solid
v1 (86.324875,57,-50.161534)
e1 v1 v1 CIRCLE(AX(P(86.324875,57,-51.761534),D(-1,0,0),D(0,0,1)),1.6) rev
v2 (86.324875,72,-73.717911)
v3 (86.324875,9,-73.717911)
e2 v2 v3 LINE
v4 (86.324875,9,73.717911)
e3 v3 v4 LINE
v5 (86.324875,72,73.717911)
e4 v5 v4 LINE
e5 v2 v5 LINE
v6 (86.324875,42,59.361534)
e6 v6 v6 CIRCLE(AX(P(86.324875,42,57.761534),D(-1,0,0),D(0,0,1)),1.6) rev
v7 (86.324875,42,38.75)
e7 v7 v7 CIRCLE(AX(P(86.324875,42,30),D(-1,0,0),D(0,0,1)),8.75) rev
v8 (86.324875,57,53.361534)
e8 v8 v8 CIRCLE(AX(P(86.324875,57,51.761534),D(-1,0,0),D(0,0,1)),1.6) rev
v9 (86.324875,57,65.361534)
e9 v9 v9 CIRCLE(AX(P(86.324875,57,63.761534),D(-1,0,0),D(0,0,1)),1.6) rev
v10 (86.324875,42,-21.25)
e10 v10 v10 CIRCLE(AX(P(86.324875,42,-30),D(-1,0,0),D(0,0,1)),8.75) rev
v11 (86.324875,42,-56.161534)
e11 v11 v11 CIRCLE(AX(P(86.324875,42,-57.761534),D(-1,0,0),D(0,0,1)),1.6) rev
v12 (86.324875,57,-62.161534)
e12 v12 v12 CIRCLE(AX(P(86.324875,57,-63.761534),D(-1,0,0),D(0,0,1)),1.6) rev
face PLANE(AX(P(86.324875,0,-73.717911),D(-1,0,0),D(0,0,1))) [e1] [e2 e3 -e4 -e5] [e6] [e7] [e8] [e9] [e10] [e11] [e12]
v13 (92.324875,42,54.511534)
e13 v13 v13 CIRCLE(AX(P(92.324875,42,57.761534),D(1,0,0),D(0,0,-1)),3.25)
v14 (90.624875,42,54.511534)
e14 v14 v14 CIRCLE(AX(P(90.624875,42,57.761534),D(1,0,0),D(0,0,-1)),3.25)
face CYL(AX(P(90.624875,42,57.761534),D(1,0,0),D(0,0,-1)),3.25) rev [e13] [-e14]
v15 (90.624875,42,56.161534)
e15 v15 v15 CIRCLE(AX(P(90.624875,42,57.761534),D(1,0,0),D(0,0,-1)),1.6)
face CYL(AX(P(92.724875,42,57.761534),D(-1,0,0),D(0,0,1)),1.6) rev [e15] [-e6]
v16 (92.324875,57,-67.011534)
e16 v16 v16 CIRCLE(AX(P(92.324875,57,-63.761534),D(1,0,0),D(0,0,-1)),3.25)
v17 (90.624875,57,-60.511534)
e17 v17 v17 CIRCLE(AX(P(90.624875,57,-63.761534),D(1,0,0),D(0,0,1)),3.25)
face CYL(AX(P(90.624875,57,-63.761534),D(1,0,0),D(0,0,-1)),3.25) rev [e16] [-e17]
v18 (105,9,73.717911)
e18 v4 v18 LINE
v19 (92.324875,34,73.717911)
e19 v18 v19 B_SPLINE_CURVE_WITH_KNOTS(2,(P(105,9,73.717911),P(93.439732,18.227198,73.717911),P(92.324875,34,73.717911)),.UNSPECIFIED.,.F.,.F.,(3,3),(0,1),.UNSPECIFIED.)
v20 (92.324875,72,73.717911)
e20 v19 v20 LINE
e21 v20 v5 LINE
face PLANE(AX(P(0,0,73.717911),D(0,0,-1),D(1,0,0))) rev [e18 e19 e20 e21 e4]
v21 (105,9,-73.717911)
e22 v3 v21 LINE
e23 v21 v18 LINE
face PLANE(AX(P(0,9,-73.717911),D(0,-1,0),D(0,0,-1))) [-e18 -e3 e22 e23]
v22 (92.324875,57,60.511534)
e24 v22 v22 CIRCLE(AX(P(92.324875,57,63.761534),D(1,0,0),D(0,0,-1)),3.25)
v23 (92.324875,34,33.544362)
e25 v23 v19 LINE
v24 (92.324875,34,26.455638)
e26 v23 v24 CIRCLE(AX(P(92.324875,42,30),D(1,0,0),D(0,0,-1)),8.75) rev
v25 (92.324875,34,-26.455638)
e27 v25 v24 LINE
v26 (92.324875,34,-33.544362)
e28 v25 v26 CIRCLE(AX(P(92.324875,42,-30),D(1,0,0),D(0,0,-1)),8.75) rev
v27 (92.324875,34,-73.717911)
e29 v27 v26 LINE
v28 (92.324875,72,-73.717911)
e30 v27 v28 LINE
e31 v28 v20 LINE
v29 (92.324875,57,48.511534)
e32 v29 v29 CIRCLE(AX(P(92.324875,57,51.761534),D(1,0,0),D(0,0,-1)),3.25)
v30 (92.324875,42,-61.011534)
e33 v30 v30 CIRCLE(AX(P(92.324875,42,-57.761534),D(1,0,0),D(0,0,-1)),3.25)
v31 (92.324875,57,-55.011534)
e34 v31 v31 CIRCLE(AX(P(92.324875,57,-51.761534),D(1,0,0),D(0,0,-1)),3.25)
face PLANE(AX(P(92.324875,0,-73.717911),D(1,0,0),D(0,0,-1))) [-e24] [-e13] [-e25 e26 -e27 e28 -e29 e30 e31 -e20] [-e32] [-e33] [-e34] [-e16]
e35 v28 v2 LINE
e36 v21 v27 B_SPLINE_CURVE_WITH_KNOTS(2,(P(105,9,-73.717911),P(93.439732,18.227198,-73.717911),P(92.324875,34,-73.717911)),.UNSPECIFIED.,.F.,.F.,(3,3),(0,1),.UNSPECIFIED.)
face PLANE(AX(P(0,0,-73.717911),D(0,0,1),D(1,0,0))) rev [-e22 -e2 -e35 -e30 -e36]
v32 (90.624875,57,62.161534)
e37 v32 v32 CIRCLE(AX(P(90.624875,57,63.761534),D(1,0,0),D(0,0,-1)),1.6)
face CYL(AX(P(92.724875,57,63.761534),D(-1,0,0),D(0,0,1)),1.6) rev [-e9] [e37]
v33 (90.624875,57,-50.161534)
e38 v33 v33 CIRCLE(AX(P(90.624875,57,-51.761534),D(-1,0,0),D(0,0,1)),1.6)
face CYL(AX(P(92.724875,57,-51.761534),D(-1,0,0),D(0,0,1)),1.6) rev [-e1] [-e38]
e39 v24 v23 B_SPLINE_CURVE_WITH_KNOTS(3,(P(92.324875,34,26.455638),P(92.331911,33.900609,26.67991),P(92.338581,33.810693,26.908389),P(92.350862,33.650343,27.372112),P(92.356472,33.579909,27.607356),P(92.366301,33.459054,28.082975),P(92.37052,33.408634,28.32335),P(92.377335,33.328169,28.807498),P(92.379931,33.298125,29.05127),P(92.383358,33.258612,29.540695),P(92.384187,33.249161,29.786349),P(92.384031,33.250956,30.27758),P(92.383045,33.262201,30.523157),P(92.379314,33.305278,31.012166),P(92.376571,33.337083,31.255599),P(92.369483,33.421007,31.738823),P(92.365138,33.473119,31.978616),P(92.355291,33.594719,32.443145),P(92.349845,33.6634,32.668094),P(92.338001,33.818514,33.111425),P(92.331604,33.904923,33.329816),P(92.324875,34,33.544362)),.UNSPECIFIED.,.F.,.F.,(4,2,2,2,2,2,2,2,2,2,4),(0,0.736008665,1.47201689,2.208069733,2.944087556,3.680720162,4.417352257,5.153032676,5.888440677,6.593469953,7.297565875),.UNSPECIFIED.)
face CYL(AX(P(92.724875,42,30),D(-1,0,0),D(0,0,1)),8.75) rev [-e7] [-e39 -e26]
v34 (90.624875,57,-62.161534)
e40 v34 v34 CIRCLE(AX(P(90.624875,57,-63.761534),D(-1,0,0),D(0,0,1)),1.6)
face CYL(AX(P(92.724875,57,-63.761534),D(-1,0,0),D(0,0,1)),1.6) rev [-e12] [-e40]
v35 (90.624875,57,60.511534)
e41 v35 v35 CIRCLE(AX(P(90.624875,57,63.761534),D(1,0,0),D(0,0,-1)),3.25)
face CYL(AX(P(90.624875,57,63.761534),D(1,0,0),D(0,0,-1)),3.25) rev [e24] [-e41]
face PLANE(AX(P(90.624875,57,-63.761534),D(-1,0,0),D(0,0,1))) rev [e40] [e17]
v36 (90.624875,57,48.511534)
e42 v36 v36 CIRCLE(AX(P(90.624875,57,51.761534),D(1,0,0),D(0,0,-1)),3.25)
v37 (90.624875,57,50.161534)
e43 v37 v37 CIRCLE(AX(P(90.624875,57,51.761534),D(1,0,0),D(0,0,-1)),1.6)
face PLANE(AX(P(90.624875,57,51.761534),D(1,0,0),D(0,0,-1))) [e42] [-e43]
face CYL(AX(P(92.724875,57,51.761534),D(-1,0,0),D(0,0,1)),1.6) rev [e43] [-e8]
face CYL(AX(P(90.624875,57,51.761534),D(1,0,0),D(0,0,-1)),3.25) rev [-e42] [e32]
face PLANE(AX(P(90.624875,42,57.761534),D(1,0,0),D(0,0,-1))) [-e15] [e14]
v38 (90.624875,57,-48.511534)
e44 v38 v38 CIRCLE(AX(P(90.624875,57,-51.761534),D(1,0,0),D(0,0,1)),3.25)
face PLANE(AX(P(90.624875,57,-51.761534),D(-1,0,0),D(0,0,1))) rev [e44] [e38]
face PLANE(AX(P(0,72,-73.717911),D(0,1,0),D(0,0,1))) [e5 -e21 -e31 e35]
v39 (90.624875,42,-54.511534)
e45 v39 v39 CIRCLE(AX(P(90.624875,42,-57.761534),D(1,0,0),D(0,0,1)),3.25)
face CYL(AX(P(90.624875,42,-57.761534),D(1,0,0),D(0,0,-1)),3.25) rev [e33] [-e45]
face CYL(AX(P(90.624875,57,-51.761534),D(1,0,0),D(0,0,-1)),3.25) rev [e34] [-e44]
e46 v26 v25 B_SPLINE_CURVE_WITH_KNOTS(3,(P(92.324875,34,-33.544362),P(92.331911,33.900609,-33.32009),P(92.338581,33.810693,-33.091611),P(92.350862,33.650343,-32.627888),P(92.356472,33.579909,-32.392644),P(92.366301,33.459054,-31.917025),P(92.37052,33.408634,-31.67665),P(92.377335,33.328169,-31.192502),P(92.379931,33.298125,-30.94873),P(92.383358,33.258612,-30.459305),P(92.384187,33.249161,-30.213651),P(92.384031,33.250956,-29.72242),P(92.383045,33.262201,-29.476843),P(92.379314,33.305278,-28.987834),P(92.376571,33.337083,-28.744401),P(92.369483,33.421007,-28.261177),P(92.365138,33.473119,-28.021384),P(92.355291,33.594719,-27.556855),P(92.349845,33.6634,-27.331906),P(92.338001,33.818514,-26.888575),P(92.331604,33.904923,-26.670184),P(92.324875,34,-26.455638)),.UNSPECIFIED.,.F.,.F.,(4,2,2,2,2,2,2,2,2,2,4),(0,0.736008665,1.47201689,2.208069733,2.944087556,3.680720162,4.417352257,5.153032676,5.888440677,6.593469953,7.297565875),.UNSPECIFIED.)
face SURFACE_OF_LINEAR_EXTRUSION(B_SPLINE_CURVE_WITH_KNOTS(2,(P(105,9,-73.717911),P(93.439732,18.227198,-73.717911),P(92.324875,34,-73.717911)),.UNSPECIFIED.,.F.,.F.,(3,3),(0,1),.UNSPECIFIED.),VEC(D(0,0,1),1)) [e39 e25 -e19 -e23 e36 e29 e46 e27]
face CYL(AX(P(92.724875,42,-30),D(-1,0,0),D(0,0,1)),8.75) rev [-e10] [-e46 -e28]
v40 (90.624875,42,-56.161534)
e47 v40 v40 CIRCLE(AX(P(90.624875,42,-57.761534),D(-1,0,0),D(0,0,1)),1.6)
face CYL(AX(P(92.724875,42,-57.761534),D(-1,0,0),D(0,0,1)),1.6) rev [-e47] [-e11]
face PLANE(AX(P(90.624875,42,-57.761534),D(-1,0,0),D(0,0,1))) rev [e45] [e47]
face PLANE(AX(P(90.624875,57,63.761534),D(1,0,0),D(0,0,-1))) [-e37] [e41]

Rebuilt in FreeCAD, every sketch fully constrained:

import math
import FreeCAD as App
import Part
import Sketcher
from FreeCAD import Vector

doc = App.newDocument("Part")
body = doc.addObject("PartDesign::Body", "Body")

sketch1 = body.newObject("Sketcher::SketchObject", "Sketch")
sketch1.AttachmentSupport = (doc.getObject("XY_Plane"), [""])
sketch1.MapMode = "FlatFace"
sketch1.addGeometry(Part.LineSegment(Vector(86.324875, 72, 0), Vector(86.324875, 9, 0)), False)
sketch1.addGeometry(Part.LineSegment(Vector(86.324875, 9, 0), Vector(105, 9, 0)), False)
sketch1.addGeometry(Part.BSplineCurve([Vector(105, 9, 0), Vector(93.439732, 18.227198, 0), Vector(92.324875, 34, 0)], [3, 3], [0, 1], False, 2, [1, 1, 1], False), False)
sketch1.addGeometry(Part.LineSegment(Vector(92.324875, 34, 0), Vector(92.324875, 72, 0)), False)
sketch1.addGeometry(Part.LineSegment(Vector(92.324875, 72, 0), Vector(86.324875, 72, 0)), False)
sketch1.addConstraint(Sketcher.Constraint("Block", 2))
sketch1.addConstraint(Sketcher.Constraint("Coincident", 0, 2, 1, 1))
sketch1.addConstraint(Sketcher.Constraint("Coincident", 1, 2, 2, 1))
sketch1.addConstraint(Sketcher.Constraint("Coincident", 2, 2, 3, 1))
sketch1.addConstraint(Sketcher.Constraint("Coincident", 3, 2, 4, 1))
sketch1.addConstraint(Sketcher.Constraint("Coincident", 4, 2, 0, 1))
sketch1.addConstraint(Sketcher.Constraint("Vertical", 0))
sketch1.addConstraint(Sketcher.Constraint("Horizontal", 1))
sketch1.addConstraint(Sketcher.Constraint("Vertical", 3))
sketch1.addConstraint(Sketcher.Constraint("Horizontal", 4))
sketch1.addConstraint(Sketcher.Constraint("DistanceX", 4, 2, 4, 1, 6.0))
sketch1.addConstraint(Sketcher.Constraint("DistanceY", 0, 2, 0, 1, 63.0))
pad1 = body.newObject("PartDesign::Pad", "Pad")
pad1.Profile = sketch1
pad1.Length = 73.717911
pad1.Reversed = True
doc.recompute()

mirrored = body.newObject("PartDesign::Mirrored", "Mirrored")
mirrored.Originals = [pad1]
mirrored.MirrorPlane = (doc.getObject("XY_Plane"), [""])
body.Tip = mirrored

sketch2 = body.newObject("Sketcher::SketchObject", "Sketch001")
sketch2.AttachmentSupport = (doc.getObject("YZ_Plane"), [""])
sketch2.MapMode = "FlatFace"
sketch2.AttachmentOffset = App.Placement(Vector(0, 0, 92.324875), App.Rotation())
sketch2.addGeometry(Part.LineSegment(Vector(34, -34, 0), Vector(34, -26, 0)), False)
sketch2.addGeometry(Part.ArcOfCircle(Part.Circle(Vector(42, -30, 0), Vector(0, 0, 1), 9), math.radians(156), math.radians(204)), False)
sketch2.addConstraint(Sketcher.Constraint("Coincident", 0, 1, 1, 2))
sketch2.addConstraint(Sketcher.Constraint("Coincident", 1, 1, 0, 2))
sketch2.addConstraint(Sketcher.Constraint("Vertical", 0))
sketch2.addConstraint(Sketcher.Constraint("Radius", 1, 8.75))
sketch2.addConstraint(Sketcher.Constraint("DistanceX", -1, 1, 1, 3, 42.0))
sketch2.addConstraint(Sketcher.Constraint("DistanceY", 1, 3, -1, 1, 30.0))
sketch2.addConstraint(Sketcher.Constraint("DistanceX", -1, 1, 0, 1, 34.0))
pocket1 = body.newObject("PartDesign::Pocket", "Pocket")
pocket1.Profile = sketch2
pocket1.Type = "UpToFirst"

sketch3 = body.newObject("Sketcher::SketchObject", "Sketch002")
sketch3.AttachmentSupport = (doc.getObject("YZ_Plane"), [""])
sketch3.MapMode = "FlatFace"
sketch3.AttachmentOffset = App.Placement(Vector(0, 0, 92.324875), App.Rotation())
sketch3.addGeometry(Part.ArcOfCircle(Part.Circle(Vector(42, -30, 0), Vector(0, 0, 1), 9), math.radians(-90), math.radians(156)), False)
sketch3.addGeometry(Part.LineSegment(Vector(34, -26, 0), Vector(34, -34, 0)), False)
sketch3.addGeometry(Part.ArcOfCircle(Part.Circle(Vector(42, -30, 0), Vector(0, 0, 1), 9), math.radians(-156), math.radians(-90)), False)
sketch3.addConstraint(Sketcher.Constraint("Coincident", 0, 2, 1, 1))
sketch3.addConstraint(Sketcher.Constraint("Coincident", 1, 2, 2, 1))
sketch3.addConstraint(Sketcher.Constraint("Tangent", 2, 2, 0, 1))
sketch3.addConstraint(Sketcher.Constraint("Vertical", 1))
sketch3.addConstraint(Sketcher.Constraint("Equal", 0, 2))
sketch3.addConstraint(Sketcher.Constraint("Vertical", 0, 3, 2, 2))
sketch3.addConstraint(Sketcher.Constraint("Radius", 0, 8.75))
sketch3.addConstraint(Sketcher.Constraint("DistanceX", -1, 1, 0, 3, 42.0))
sketch3.addConstraint(Sketcher.Constraint("DistanceY", 0, 3, -1, 1, 30.0))
sketch3.addConstraint(Sketcher.Constraint("DistanceX", -1, 1, 0, 2, 34.0))
pocket2 = body.newObject("PartDesign::Pocket", "Pocket001")
pocket2.Profile = sketch3
pocket2.Type = "UpToFirst"

sketch4 = body.newObject("Sketcher::SketchObject", "Sketch003")
sketch4.AttachmentSupport = (doc.getObject("YZ_Plane"), [""])
sketch4.MapMode = "FlatFace"
sketch4.AttachmentOffset = App.Placement(Vector(0, 0, 92.324875), App.Rotation())
sketch4.addGeometry(Part.Circle(Vector(42, 30, 0), Vector(0, 0, 1), 9), False)
sketch4.addConstraint(Sketcher.Constraint("Diameter", 0, 17.5))
sketch4.addConstraint(Sketcher.Constraint("DistanceX", -1, 1, 0, 3, 42.0))
sketch4.addConstraint(Sketcher.Constraint("DistanceY", -1, 1, 0, 3, 30.0))
pocket3 = body.newObject("PartDesign::Pocket", "Pocket002")
pocket3.Profile = sketch4
pocket3.Type = "UpToFirst"

sketch5 = body.newObject("Sketcher::SketchObject", "Sketch004")
sketch5.AttachmentSupport = (doc.getObject("YZ_Plane"), [""])
sketch5.MapMode = "FlatFace"
sketch5.AttachmentOffset = App.Placement(Vector(0, 0, 92.324875), App.Rotation())
sketch5.addGeometry(Part.ArcOfCircle(Part.Circle(Vector(42, -30, 0), Vector(0, 0, 1), 9), math.radians(156), math.radians(204)), False)
sketch5.addGeometry(Part.ArcOfCircle(Part.Circle(Vector(42, -30, 0), Vector(0, 0, 1), 9), math.radians(-156), math.radians(-90)), False)
sketch5.addGeometry(Part.ArcOfCircle(Part.Circle(Vector(42, -30, 0), Vector(0, 0, 1), 9), math.radians(-90), math.radians(156)), False)
sketch5.addGeometry(Part.Circle(Vector(42, 30, 0), Vector(0, 0, 1), 9), False)
sketch5.addConstraint(Sketcher.Constraint("Tangent", 0, 2, 1, 1))
sketch5.addConstraint(Sketcher.Constraint("Tangent", 1, 2, 2, 1))
sketch5.addConstraint(Sketcher.Constraint("Tangent", 2, 2, 0, 1))
sketch5.addConstraint(Sketcher.Constraint("Equal", 2, 3))
sketch5.addConstraint(Sketcher.Constraint("Symmetric", 0, 3, 3, 3, -1))
sketch5.addConstraint(Sketcher.Constraint("Vertical", 3, 3, 1, 2))
sketch5.addConstraint(Sketcher.Constraint("Vertical", 0, 2, 2, 2))
sketch5.addConstraint(Sketcher.Constraint("Diameter", 3, 17.5))
sketch5.addConstraint(Sketcher.Constraint("DistanceX", -1, 1, 0, 3, 42.0))
sketch5.addConstraint(Sketcher.Constraint("DistanceY", 0, 3, -1, 1, 30.0))
sketch5.addConstraint(Sketcher.Constraint("DistanceX", -1, 1, 0, 2, 34.0))
pocket4 = body.newObject("PartDesign::Pocket", "Pocket003")
pocket4.Profile = sketch5
pocket4.Length = 0.4
pocket4.Reversed = True

sketch6 = body.newObject("Sketcher::SketchObject", "Sketch005")
sketch6.AttachmentSupport = (doc.getObject("YZ_Plane"), [""])
sketch6.MapMode = "FlatFace"
sketch6.AttachmentOffset = App.Placement(Vector(0, 0, 92.324875), App.Rotation())
sketch6.addGeometry(Part.Circle(Vector(42, 57.8, 0), Vector(0, 0, 1), 1.6), False)
sketch6.addConstraint(Sketcher.Constraint("Diameter", 0, 3.2))
sketch6.addConstraint(Sketcher.Constraint("DistanceX", -1, 1, 0, 3, 42.0))
sketch6.addConstraint(Sketcher.Constraint("DistanceY", -1, 1, 0, 3, 57.761534))
pocket5 = body.newObject("PartDesign::Pocket", "Pocket004")
pocket5.Profile = sketch6
pocket5.Type = "UpToFirst"

sketch7 = body.newObject("Sketcher::SketchObject", "Sketch006")
sketch7.AttachmentSupport = (doc.getObject("YZ_Plane"), [""])
sketch7.MapMode = "FlatFace"
sketch7.AttachmentOffset = App.Placement(Vector(0, 0, 92.324875), App.Rotation())
sketch7.addGeometry(Part.Circle(Vector(57, 63.8, 0), Vector(0, 0, 1), 1.6), False)
sketch7.addConstraint(Sketcher.Constraint("Diameter", 0, 3.2))
sketch7.addConstraint(Sketcher.Constraint("DistanceX", -1, 1, 0, 3, 57.0))
sketch7.addConstraint(Sketcher.Constraint("DistanceY", -1, 1, 0, 3, 63.761534))
pocket6 = body.newObject("PartDesign::Pocket", "Pocket005")
pocket6.Profile = sketch7
pocket6.Type = "UpToFirst"

sketch8 = body.newObject("Sketcher::SketchObject", "Sketch007")
sketch8.AttachmentSupport = (doc.getObject("YZ_Plane"), [""])
sketch8.MapMode = "FlatFace"
sketch8.AttachmentOffset = App.Placement(Vector(0, 0, 92.324875), App.Rotation())
sketch8.addGeometry(Part.Circle(Vector(57, 51.8, 0), Vector(0, 0, 1), 1.6), False)
sketch8.addConstraint(Sketcher.Constraint("Diameter", 0, 3.2))
sketch8.addConstraint(Sketcher.Constraint("DistanceX", -1, 1, 0, 3, 57.0))
sketch8.addConstraint(Sketcher.Constraint("DistanceY", -1, 1, 0, 3, 51.761534))
pocket7 = body.newObject("PartDesign::Pocket", "Pocket006")
pocket7.Profile = sketch8
pocket7.Type = "UpToFirst"

sketch9 = body.newObject("Sketcher::SketchObject", "Sketch008")
sketch9.AttachmentSupport = (doc.getObject("YZ_Plane"), [""])
sketch9.MapMode = "FlatFace"
sketch9.AttachmentOffset = App.Placement(Vector(0, 0, 92.324875), App.Rotation())
sketch9.addGeometry(Part.Circle(Vector(57, -51.8, 0), Vector(0, 0, 1), 1.6), False)
sketch9.addConstraint(Sketcher.Constraint("Diameter", 0, 3.2))
sketch9.addConstraint(Sketcher.Constraint("DistanceX", -1, 1, 0, 3, 57.0))
sketch9.addConstraint(Sketcher.Constraint("DistanceY", 0, 3, -1, 1, 51.761534))
pocket8 = body.newObject("PartDesign::Pocket", "Pocket007")
pocket8.Profile = sketch9
pocket8.Type = "UpToFirst"

sketch10 = body.newObject("Sketcher::SketchObject", "Sketch009")
sketch10.AttachmentSupport = (doc.getObject("YZ_Plane"), [""])
sketch10.MapMode = "FlatFace"
sketch10.AttachmentOffset = App.Placement(Vector(0, 0, 92.324875), App.Rotation())
sketch10.addGeometry(Part.Circle(Vector(57, -63.8, 0), Vector(0, 0, 1), 1.6), False)
sketch10.addConstraint(Sketcher.Constraint("Diameter", 0, 3.2))
sketch10.addConstraint(Sketcher.Constraint("DistanceX", -1, 1, 0, 3, 57.0))
sketch10.addConstraint(Sketcher.Constraint("DistanceY", 0, 3, -1, 1, 63.761534))
pocket9 = body.newObject("PartDesign::Pocket", "Pocket008")
pocket9.Profile = sketch10
pocket9.Type = "UpToFirst"

sketch11 = body.newObject("Sketcher::SketchObject", "Sketch010")
sketch11.AttachmentSupport = (doc.getObject("YZ_Plane"), [""])
sketch11.MapMode = "FlatFace"
sketch11.AttachmentOffset = App.Placement(Vector(0, 0, 92.324875), App.Rotation())
sketch11.addGeometry(Part.Circle(Vector(42, -57.8, 0), Vector(0, 0, 1), 1.6), False)
sketch11.addConstraint(Sketcher.Constraint("Diameter", 0, 3.2))
sketch11.addConstraint(Sketcher.Constraint("DistanceX", -1, 1, 0, 3, 42.0))
sketch11.addConstraint(Sketcher.Constraint("DistanceY", 0, 3, -1, 1, 57.761534))
pocket10 = body.newObject("PartDesign::Pocket", "Pocket009")
pocket10.Profile = sketch11
pocket10.Type = "UpToFirst"

sketch12 = body.newObject("Sketcher::SketchObject", "Sketch011")
sketch12.AttachmentSupport = (doc.getObject("YZ_Plane"), [""])
sketch12.MapMode = "FlatFace"
sketch12.AttachmentOffset = App.Placement(Vector(0, 0, 92.324875), App.Rotation())
sketch12.addGeometry(Part.Circle(Vector(42, 57.8, 0), Vector(0, 0, 1), 1.6), False)
sketch12.addGeometry(Part.Circle(Vector(57, 63.8, 0), Vector(0, 0, 1), 1.6), False)
sketch12.addGeometry(Part.Circle(Vector(57, 51.8, 0), Vector(0, 0, 1), 1.6), False)
sketch12.addGeometry(Part.Circle(Vector(57, -51.8, 0), Vector(0, 0, 1), 1.6), False)
sketch12.addGeometry(Part.Circle(Vector(57, -63.8, 0), Vector(0, 0, 1), 1.6), False)
sketch12.addGeometry(Part.Circle(Vector(42, -57.8, 0), Vector(0, 0, 1), 1.6), False)
sketch12.addConstraint(Sketcher.Constraint("Equal", 0, 1))
sketch12.addConstraint(Sketcher.Constraint("Equal", 1, 2))
sketch12.addConstraint(Sketcher.Constraint("Equal", 2, 3))
sketch12.addConstraint(Sketcher.Constraint("Equal", 3, 4))
sketch12.addConstraint(Sketcher.Constraint("Equal", 4, 5))
sketch12.addConstraint(Sketcher.Constraint("Symmetric", 2, 3, 3, 3, -1))
sketch12.addConstraint(Sketcher.Constraint("Symmetric", 1, 3, 4, 3, -1))
sketch12.addConstraint(Sketcher.Constraint("Symmetric", 0, 3, 5, 3, -1))
sketch12.addConstraint(Sketcher.Constraint("Vertical", 1, 3, 2, 3))
sketch12.addConstraint(Sketcher.Constraint("Diameter", 0, 3.2))
sketch12.addConstraint(Sketcher.Constraint("DistanceX", -1, 1, 0, 3, 42.0))
sketch12.addConstraint(Sketcher.Constraint("DistanceX", -1, 1, 1, 3, 57.0))
sketch12.addConstraint(Sketcher.Constraint("DistanceY", 0, 3, 1, 3, 6.0))
sketch12.addConstraint(Sketcher.Constraint("DistanceY", 2, 3, 1, 3, 12.0))
sketch12.addConstraint(Sketcher.Constraint("DistanceY", -1, 1, 0, 3, 57.761534))
pocket11 = body.newObject("PartDesign::Pocket", "Pocket010")
pocket11.Profile = sketch12
pocket11.Length = 0.4
pocket11.Reversed = True

sketch13 = body.newObject("Sketcher::SketchObject", "Sketch012")
sketch13.AttachmentSupport = (doc.getObject("YZ_Plane"), [""])
sketch13.MapMode = "FlatFace"
sketch13.AttachmentOffset = App.Placement(Vector(0, 0, 93.124875), App.Rotation())
sketch13.addGeometry(Part.Circle(Vector(42, 57.8, 0), Vector(0, 0, 1), 3.2), False)
sketch13.addGeometry(Part.Circle(Vector(57, 63.8, 0), Vector(0, 0, 1), 3.2), False)
sketch13.addGeometry(Part.Circle(Vector(57, 51.8, 0), Vector(0, 0, 1), 3.2), False)
sketch13.addGeometry(Part.Circle(Vector(57, -51.8, 0), Vector(0, 0, 1), 3.2), False)
sketch13.addGeometry(Part.Circle(Vector(57, -63.8, 0), Vector(0, 0, 1), 3.2), False)
sketch13.addGeometry(Part.Circle(Vector(42, -57.8, 0), Vector(0, 0, 1), 3.2), False)
sketch13.addConstraint(Sketcher.Constraint("Equal", 0, 1))
sketch13.addConstraint(Sketcher.Constraint("Equal", 1, 2))
sketch13.addConstraint(Sketcher.Constraint("Equal", 2, 3))
sketch13.addConstraint(Sketcher.Constraint("Equal", 3, 4))
sketch13.addConstraint(Sketcher.Constraint("Equal", 4, 5))
sketch13.addConstraint(Sketcher.Constraint("Symmetric", 2, 3, 3, 3, -1))
sketch13.addConstraint(Sketcher.Constraint("Symmetric", 1, 3, 4, 3, -1))
sketch13.addConstraint(Sketcher.Constraint("Symmetric", 0, 3, 5, 3, -1))
sketch13.addConstraint(Sketcher.Constraint("Vertical", 1, 3, 2, 3))
sketch13.addConstraint(Sketcher.Constraint("Diameter", 0, 6.5))
sketch13.addConstraint(Sketcher.Constraint("DistanceX", -1, 1, 0, 3, 42.0))
sketch13.addConstraint(Sketcher.Constraint("DistanceX", -1, 1, 1, 3, 57.0))
sketch13.addConstraint(Sketcher.Constraint("DistanceY", 0, 3, 1, 3, 6.0))
sketch13.addConstraint(Sketcher.Constraint("DistanceY", 2, 3, 1, 3, 12.0))
sketch13.addConstraint(Sketcher.Constraint("DistanceY", -1, 1, 0, 3, 57.761534))
pocket12 = body.newObject("PartDesign::Pocket", "Pocket011")
pocket12.Profile = sketch13
pocket12.Length = 2.5

doc.recompute()
